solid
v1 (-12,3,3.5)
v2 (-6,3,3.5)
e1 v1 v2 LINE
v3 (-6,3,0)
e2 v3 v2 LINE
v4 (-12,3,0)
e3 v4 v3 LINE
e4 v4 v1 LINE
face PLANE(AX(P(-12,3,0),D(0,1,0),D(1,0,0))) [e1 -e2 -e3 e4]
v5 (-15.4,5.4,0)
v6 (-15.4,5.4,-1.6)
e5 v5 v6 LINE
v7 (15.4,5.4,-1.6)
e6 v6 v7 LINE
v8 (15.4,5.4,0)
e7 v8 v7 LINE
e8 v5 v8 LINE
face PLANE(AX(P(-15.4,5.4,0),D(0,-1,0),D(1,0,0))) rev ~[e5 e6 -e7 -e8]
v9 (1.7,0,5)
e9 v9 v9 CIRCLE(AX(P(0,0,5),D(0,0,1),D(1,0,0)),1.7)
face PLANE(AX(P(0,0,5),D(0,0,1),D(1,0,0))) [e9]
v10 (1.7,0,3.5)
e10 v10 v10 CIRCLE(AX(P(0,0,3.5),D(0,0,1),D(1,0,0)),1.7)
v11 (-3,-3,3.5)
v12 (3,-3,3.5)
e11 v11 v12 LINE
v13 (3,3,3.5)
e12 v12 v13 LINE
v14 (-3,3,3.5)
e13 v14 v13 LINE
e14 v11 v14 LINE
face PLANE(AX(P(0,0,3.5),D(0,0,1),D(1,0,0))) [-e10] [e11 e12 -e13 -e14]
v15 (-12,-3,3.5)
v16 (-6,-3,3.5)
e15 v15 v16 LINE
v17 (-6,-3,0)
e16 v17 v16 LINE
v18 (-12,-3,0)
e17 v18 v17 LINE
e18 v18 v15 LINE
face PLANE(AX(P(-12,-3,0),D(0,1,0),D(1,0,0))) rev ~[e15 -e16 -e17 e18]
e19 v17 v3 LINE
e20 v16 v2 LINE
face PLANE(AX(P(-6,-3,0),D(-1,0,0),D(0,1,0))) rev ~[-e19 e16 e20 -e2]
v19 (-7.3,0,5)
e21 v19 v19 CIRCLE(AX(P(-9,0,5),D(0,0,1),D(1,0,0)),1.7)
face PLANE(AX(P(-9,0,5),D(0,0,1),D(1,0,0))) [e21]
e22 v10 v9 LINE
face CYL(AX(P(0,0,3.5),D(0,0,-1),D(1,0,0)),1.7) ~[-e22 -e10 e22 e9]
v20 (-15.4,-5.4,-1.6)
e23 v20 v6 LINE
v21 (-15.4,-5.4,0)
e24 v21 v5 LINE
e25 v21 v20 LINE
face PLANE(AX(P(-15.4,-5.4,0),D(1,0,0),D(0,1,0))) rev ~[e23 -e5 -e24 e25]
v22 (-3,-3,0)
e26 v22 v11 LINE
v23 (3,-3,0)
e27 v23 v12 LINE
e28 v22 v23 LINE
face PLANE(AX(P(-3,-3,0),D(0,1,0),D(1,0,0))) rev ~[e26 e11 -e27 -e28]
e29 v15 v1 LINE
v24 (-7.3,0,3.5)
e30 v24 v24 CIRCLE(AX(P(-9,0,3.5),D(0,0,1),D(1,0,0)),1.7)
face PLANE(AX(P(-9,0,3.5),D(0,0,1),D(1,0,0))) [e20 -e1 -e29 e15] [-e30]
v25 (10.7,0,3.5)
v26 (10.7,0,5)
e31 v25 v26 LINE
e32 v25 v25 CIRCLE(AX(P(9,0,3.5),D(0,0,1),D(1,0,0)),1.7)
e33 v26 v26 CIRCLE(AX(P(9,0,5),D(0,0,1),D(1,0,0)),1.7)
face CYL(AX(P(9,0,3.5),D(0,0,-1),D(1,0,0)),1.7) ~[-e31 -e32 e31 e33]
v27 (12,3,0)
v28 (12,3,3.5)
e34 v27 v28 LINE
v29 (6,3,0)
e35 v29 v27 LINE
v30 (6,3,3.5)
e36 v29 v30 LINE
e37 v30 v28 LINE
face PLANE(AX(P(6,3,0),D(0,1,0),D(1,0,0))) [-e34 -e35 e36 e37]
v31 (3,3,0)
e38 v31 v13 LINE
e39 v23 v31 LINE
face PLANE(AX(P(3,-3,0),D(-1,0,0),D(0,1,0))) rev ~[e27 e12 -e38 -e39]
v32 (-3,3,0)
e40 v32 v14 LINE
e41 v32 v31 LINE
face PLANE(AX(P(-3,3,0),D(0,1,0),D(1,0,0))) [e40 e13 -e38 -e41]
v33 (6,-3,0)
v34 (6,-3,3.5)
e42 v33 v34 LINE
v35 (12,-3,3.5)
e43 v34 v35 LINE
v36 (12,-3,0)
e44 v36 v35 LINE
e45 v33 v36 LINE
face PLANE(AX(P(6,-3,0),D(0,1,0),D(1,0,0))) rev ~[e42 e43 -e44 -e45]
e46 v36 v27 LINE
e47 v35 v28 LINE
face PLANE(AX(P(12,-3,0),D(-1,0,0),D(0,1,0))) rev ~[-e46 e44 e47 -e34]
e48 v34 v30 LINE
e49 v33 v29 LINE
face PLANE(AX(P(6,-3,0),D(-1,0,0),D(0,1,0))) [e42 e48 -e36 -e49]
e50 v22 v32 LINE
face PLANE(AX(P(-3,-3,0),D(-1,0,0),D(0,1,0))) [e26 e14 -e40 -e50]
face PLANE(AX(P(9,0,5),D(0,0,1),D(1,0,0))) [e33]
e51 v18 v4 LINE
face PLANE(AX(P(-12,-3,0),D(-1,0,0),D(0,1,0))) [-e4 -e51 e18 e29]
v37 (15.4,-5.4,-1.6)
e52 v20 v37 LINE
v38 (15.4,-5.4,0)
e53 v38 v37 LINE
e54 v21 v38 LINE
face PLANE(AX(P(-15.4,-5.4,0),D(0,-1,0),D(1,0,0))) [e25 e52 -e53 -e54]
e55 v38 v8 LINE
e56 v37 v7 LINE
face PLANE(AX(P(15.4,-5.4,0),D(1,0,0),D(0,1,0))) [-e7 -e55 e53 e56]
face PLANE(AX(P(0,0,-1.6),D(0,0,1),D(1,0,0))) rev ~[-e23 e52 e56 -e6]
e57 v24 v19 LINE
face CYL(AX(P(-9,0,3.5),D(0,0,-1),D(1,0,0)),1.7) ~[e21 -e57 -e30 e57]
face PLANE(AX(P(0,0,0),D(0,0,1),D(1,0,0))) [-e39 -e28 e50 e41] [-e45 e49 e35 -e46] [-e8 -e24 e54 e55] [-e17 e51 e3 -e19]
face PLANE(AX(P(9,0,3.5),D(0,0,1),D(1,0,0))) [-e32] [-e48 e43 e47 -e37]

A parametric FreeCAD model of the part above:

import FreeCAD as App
import Part
import Sketcher

V = App.Vector


def add_polygon(sketch, points):
    """Adds a closed chain of lines whose ends are joined by coincident constraints."""
    first, n = sketch.GeometryCount, len(points)
    for a, b in zip(points, points[1:] + points[:1]):
        sketch.addGeometry(Part.LineSegment(App.Vector(*a, 0), App.Vector(*b, 0)), False)
    for i in range(n):
        sketch.addConstraint(Sketcher.Constraint("Coincident", first + i, 2, first + (i + 1) % n, 1))

doc = App.newDocument("Part")
body = doc.addObject("PartDesign::Body", "Body")

# Sketch on XY plane
sketch1 = body.newObject("Sketcher::SketchObject", "Sketch")
sketch1.AttachmentSupport = (doc.getObject("XY_Plane"), [""])
sketch1.MapMode = "FlatFace"
add_polygon(sketch1, [(-15, 5), (-15, -5), (15, -5), (15, 5)])  # lines 0-3
sketch1.addConstraint(Sketcher.Constraint("Vertical", 0))
sketch1.addConstraint(Sketcher.Constraint("Horizontal", 1))
sketch1.addConstraint(Sketcher.Constraint("Vertical", 2))
sketch1.addConstraint(Sketcher.Constraint("Horizontal", 3))
sketch1.addConstraint(Sketcher.Constraint("Symmetric", 0, 2, 2, 2, -1, 1))
sketch1.addConstraint(Sketcher.Constraint("DistanceX", 1, 1, 1, 2, 30.8))
sketch1.addConstraint(Sketcher.Constraint("DistanceY", 0, 2, 0, 1, 10.8))
pad1 = body.newObject("PartDesign::Pad", "Pad")
pad1.Profile = sketch1
pad1.Length = 1.6
pad1.Reversed = True

# Sketch on XY plane
sketch2 = body.newObject("Sketcher::SketchObject", "Sketch001")
sketch2.AttachmentSupport = (doc.getObject("XY_Plane"), [""])
sketch2.MapMode = "FlatFace"
add_polygon(sketch2, [(-12, 3), (-12, -3), (-6, -3), (-6, 3)])  # lines 0-3
add_polygon(sketch2, [(-3, 3), (-3, -3), (3, -3), (3, 3)])  # lines 4-7
add_polygon(sketch2, [(6, 3), (6, -3), (12, -3), (12, 3)])  # lines 8-11
sketch2.addConstraint(Sketcher.Constraint("Vertical", 0))
sketch2.addConstraint(Sketcher.Constraint("Horizontal", 1))
sketch2.addConstraint(Sketcher.Constraint("Vertical", 2))
sketch2.addConstraint(Sketcher.Constraint("Horizontal", 3))
sketch2.addConstraint(Sketcher.Constraint("Vertical", 4))
sketch2.addConstraint(Sketcher.Constraint("Horizontal", 5))
sketch2.addConstraint(Sketcher.Constraint("Vertical", 6))
sketch2.addConstraint(Sketcher.Constraint("Horizontal", 7))
sketch2.addConstraint(Sketcher.Constraint("Vertical", 8))
sketch2.addConstraint(Sketcher.Constraint("Horizontal", 9))
sketch2.addConstraint(Sketcher.Constraint("Vertical", 10))
sketch2.addConstraint(Sketcher.Constraint("Horizontal", 11))
sketch2.addConstraint(Sketcher.Constraint("Symmetric", 4, 2, 6, 2, -1, 1))
sketch2.addConstraint(Sketcher.Constraint("Symmetric", 2, 2, 8, 2, -1, 1))
sketch2.addConstraint(Sketcher.Constraint("Symmetric", 0, 2, 10, 2, -1, 1))
sketch2.addConstraint(Sketcher.Constraint("Horizontal", 1, 2, 4, 2))
sketch2.addConstraint(Sketcher.Constraint("Horizontal", 3, 2, 6, 2))
sketch2.addConstraint(Sketcher.Constraint("Equal", 3, 5))
sketch2.addConstraint(Sketcher.Constraint("Equal", 11, 0))
sketch2.addConstraint(Sketcher.Constraint("DistanceX", 1, 1, 1, 2, 6.0))
sketch2.addConstraint(Sketcher.Constraint("DistanceX", 0, 2, -1, 1, 12.0))
pad2 = body.newObject("PartDesign::Pad", "Pad001")
pad2.Profile = sketch2
pad2.Length = 3.5

# Sketch on XY plane
sketch3 = body.newObject("Sketcher::SketchObject", "Sketch002")
sketch3.AttachmentSupport = (doc.getObject("XY_Plane"), [""])
sketch3.MapMode = "FlatFace"
sketch3.AttachmentOffset = App.Placement(V(0, 0, 3.5), App.Rotation())
sketch3.addGeometry(Part.Circle(V(-9, 0, 0), V(0, 0, 1), 1.7), False)
sketch3.addGeometry(Part.Circle(V(0, 0, 0), V(0, 0, 1), 1.7), False)
sketch3.addGeometry(Part.Circle(V(9, 0, 0), V(0, 0, 1), 1.7), False)
sketch3.addConstraint(Sketcher.Constraint("Coincident", 1, 3, -1, 1))
sketch3.addConstraint(Sketcher.Constraint("Equal", 0, 1))
sketch3.addConstraint(Sketcher.Constraint("Equal", 1, 2))
sketch3.addConstraint(Sketcher.Constraint("Symmetric", 0, 3, 2, 3, -1, 1))
sketch3.addConstraint(Sketcher.Constraint("PointOnObject", 0, 3, -1))
sketch3.addConstraint(Sketcher.Constraint("Diameter", 0, 3.4))
sketch3.addConstraint(Sketcher.Constraint("DistanceX", 0, 3, -1, 1, 9.0))
pad3 = body.newObject("PartDesign::Pad", "Pad002")
pad3.Profile = sketch3
pad3.Length = 1.5

doc.recompute()
